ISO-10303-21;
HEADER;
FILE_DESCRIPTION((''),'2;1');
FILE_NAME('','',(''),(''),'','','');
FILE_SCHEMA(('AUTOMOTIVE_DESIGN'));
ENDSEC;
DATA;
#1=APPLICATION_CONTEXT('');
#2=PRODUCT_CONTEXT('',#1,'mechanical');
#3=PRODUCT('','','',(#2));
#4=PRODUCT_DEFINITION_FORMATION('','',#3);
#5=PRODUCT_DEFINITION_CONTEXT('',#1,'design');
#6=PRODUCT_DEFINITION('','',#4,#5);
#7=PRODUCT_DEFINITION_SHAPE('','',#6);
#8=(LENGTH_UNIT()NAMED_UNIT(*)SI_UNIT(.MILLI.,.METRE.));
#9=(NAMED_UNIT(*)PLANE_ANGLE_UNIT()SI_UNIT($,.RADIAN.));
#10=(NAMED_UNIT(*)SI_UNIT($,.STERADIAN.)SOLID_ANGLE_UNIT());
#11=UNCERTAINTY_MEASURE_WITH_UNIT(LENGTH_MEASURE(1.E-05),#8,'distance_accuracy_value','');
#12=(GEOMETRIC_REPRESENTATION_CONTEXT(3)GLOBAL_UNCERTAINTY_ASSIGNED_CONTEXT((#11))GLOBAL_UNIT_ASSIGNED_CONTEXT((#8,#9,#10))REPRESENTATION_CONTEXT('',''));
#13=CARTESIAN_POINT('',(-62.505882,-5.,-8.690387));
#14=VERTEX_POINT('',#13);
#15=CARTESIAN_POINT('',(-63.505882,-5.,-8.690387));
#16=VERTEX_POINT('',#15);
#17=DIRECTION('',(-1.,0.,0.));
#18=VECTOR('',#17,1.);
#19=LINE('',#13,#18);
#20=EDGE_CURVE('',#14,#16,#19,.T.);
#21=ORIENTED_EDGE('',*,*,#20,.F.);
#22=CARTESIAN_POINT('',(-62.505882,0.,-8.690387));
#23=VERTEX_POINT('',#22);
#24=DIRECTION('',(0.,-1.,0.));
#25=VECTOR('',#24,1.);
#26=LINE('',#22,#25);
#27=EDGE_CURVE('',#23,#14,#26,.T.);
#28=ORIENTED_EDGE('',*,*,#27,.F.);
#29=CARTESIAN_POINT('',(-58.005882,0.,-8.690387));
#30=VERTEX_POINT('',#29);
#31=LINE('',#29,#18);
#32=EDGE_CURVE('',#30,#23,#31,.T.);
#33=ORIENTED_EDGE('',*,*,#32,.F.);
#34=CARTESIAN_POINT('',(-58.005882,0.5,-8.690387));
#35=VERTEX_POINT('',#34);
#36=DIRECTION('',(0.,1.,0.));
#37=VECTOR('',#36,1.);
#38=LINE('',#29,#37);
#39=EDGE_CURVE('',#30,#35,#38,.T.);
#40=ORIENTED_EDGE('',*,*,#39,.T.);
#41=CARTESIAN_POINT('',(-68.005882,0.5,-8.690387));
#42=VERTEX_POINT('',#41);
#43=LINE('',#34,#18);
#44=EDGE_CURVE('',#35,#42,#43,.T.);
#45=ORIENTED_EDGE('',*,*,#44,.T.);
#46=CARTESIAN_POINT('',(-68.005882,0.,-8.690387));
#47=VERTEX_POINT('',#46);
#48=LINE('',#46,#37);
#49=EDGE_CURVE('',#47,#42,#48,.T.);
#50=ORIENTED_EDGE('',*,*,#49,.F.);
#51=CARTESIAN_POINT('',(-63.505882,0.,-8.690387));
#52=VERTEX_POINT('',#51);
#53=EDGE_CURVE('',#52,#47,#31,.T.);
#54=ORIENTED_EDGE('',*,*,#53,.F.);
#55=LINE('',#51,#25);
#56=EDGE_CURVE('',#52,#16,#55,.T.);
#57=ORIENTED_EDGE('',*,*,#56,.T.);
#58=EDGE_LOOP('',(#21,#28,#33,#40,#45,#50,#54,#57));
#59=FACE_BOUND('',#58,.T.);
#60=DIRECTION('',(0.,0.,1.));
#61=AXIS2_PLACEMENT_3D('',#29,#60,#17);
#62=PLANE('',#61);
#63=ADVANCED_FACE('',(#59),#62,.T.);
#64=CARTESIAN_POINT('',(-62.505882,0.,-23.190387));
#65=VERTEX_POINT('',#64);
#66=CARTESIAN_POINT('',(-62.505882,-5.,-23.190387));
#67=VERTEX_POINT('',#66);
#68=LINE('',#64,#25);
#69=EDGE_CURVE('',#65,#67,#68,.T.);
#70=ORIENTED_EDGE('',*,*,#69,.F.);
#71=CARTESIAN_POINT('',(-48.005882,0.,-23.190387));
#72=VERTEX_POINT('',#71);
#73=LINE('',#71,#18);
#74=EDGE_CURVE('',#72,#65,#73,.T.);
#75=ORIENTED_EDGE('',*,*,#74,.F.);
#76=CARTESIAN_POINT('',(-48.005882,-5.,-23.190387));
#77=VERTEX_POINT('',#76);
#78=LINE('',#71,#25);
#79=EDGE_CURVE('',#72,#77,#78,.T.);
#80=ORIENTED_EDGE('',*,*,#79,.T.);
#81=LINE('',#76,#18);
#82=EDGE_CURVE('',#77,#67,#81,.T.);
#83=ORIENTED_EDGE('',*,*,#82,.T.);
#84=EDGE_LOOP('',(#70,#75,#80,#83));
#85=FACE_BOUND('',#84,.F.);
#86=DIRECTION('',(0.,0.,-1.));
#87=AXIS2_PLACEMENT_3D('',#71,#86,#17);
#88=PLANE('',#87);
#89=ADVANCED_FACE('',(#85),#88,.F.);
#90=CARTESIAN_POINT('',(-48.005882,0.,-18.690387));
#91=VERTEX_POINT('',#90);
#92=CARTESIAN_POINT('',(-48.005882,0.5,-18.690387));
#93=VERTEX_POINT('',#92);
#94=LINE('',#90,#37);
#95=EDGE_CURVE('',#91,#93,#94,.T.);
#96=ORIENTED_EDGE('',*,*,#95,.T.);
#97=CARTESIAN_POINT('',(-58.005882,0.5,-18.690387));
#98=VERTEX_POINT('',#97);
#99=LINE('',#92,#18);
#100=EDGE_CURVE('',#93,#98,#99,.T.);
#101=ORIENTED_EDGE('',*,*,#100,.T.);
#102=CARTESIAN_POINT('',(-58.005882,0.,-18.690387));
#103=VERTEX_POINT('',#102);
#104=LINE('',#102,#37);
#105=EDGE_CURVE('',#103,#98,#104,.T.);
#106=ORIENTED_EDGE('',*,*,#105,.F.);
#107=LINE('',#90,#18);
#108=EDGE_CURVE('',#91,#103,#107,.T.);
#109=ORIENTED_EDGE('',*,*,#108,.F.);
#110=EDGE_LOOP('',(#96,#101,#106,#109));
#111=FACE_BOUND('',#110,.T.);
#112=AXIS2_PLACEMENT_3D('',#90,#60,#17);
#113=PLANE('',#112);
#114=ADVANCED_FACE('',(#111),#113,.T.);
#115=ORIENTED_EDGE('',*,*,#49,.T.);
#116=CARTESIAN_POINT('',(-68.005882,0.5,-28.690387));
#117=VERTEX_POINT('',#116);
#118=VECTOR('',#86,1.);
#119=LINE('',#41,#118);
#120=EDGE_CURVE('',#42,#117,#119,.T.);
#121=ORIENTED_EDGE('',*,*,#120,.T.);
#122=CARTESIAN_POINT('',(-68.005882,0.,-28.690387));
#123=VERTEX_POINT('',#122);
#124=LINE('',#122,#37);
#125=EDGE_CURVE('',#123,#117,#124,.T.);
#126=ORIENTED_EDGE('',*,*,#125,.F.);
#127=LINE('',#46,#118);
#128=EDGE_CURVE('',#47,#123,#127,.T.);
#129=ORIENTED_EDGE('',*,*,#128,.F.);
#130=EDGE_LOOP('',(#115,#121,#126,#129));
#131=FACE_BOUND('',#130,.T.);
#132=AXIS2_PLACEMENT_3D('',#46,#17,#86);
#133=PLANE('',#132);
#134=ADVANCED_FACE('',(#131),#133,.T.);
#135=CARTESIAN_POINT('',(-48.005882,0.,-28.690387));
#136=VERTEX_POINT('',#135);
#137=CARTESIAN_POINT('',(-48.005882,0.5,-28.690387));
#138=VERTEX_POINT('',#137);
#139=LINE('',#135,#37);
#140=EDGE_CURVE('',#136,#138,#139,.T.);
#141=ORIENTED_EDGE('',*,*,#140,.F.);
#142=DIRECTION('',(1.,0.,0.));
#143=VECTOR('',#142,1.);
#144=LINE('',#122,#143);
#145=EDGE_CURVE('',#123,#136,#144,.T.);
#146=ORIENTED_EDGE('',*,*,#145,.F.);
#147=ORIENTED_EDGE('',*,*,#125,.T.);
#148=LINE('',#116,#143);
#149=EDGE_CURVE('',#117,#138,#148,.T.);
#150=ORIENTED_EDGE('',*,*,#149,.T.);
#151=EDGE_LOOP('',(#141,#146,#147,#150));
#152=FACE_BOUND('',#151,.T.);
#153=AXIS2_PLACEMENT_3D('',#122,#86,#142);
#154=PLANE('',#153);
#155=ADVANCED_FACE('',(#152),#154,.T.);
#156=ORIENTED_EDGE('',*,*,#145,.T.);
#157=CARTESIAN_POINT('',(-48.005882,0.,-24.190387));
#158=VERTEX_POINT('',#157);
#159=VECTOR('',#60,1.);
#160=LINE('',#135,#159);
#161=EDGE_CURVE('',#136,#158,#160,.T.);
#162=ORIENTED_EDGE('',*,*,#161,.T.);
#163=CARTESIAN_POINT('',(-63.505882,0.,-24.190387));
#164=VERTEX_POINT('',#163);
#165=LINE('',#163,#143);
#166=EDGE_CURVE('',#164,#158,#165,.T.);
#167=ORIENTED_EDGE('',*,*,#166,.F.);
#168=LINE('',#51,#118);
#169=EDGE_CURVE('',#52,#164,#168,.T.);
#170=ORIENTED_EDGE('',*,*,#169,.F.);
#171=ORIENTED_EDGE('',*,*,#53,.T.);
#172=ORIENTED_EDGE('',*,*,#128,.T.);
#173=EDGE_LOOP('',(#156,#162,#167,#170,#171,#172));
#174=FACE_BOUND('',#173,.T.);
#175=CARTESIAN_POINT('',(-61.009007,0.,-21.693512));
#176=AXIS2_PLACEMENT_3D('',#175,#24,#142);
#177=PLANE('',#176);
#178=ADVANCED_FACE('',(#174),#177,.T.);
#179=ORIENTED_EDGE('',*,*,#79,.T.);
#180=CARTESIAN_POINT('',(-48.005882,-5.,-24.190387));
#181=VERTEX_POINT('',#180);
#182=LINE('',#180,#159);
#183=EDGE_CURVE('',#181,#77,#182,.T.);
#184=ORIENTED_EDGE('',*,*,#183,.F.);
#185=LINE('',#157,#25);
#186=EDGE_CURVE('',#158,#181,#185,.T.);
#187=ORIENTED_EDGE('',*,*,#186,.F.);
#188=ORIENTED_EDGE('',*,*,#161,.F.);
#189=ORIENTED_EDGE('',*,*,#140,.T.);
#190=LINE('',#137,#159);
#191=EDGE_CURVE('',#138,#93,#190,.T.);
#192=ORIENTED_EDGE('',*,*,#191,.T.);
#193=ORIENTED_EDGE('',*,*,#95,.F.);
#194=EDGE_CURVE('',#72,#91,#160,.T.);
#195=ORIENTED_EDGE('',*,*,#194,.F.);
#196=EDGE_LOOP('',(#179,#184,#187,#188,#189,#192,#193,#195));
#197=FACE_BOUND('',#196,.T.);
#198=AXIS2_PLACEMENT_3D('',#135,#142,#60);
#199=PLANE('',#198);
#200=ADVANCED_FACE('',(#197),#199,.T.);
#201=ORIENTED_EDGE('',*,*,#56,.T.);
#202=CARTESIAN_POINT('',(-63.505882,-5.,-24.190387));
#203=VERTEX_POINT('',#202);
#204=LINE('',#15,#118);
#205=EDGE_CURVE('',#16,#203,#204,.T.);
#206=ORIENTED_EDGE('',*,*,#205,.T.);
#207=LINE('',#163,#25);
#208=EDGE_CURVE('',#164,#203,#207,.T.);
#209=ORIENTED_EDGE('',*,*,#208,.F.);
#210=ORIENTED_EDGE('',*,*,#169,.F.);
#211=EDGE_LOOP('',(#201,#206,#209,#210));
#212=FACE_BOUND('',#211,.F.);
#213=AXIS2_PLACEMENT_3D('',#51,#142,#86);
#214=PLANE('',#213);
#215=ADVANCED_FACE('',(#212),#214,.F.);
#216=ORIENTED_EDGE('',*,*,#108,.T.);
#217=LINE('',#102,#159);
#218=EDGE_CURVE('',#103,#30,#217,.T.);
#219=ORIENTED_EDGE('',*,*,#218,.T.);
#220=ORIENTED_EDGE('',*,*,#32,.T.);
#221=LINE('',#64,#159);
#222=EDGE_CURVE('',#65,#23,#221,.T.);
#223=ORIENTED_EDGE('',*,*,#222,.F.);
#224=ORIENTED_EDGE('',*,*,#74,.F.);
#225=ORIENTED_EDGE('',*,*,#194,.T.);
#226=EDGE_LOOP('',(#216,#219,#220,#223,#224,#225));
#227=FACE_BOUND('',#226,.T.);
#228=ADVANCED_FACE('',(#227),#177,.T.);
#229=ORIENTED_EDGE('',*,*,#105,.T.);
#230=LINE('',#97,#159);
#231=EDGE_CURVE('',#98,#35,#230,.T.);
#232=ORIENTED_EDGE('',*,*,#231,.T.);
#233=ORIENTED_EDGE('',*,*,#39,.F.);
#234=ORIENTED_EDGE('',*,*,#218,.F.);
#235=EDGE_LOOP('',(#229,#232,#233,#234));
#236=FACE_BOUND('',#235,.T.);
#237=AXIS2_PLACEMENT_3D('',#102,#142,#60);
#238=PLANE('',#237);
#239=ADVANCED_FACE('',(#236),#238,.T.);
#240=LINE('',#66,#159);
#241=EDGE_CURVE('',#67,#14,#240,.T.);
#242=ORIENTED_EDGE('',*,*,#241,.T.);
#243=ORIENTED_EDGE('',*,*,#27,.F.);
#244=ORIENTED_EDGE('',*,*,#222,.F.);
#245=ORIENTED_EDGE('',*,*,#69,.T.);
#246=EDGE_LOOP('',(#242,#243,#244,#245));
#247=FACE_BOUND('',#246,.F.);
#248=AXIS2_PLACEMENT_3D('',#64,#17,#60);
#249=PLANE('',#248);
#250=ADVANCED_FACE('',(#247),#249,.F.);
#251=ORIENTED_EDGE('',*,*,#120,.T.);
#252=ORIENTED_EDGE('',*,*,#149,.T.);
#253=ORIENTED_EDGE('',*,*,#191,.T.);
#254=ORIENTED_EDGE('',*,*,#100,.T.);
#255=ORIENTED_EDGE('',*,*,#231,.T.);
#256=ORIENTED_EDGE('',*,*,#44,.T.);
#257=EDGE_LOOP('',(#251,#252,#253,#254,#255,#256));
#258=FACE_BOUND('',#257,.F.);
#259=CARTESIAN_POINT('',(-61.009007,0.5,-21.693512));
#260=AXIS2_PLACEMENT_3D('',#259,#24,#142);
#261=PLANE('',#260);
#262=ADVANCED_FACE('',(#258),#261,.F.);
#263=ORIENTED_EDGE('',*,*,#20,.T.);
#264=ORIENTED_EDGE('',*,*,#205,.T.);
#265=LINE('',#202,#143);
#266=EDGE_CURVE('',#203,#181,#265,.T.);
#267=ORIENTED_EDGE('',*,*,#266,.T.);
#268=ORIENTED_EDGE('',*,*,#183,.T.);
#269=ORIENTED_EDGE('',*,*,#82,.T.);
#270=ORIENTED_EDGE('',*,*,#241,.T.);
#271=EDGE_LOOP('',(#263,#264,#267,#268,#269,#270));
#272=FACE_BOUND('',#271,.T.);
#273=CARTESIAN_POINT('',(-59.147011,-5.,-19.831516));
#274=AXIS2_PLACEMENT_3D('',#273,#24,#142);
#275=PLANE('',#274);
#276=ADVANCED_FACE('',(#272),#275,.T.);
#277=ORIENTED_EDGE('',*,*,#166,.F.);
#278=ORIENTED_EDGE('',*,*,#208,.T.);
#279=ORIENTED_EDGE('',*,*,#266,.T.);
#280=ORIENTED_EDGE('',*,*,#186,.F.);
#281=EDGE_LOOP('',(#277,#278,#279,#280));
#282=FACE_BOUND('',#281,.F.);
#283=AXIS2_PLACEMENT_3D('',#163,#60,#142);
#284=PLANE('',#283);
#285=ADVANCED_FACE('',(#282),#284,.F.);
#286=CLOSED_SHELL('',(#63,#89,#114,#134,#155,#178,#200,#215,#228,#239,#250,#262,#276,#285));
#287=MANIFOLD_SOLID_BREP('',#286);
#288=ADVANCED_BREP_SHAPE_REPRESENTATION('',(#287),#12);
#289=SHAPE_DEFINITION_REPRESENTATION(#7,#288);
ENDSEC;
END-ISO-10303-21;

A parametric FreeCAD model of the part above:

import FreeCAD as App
import Part
import Sketcher

V = App.Vector
Q = App.Units.Quantity

doc = App.newDocument("Part")
body = doc.addObject("PartDesign::Body", "Body")

# Sketch on XZ plane
sketch1 = doc.addObject("Sketcher::SketchObject", "Sketch")
body.addObject(sketch1)
sketch1.AttachmentSupport = (doc.XZ_Plane, [""])
sketch1.MapMode = "FlatFace"
sketch1.addGeometry(Part.LineSegment(V(-63.5, -24.2, 0), V(-48, -24.2, 0)), False)
sketch1.addGeometry(Part.LineSegment(V(-48, -24.2, 0), V(-48, -23.2, 0)), False)
sketch1.addGeometry(Part.LineSegment(V(-48, -23.2, 0), V(-62.5, -23.2, 0)), False)
sketch1.addGeometry(Part.LineSegment(V(-62.5, -23.2, 0), V(-62.5, -8.7, 0)), False)
sketch1.addGeometry(Part.LineSegment(V(-62.5, -8.7, 0), V(-63.5, -8.7, 0)), False)
sketch1.addGeometry(Part.LineSegment(V(-63.5, -8.7, 0), V(-63.5, -24.2, 0)), False)
sketch1.addConstraint(Sketcher.Constraint("Coincident", 0, 2, 1, 1))
sketch1.addConstraint(Sketcher.Constraint("Coincident", 1, 2, 2, 1))
sketch1.addConstraint(Sketcher.Constraint("Coincident", 2, 2, 3, 1))
sketch1.addConstraint(Sketcher.Constraint("Coincident", 3, 2, 4, 1))
sketch1.addConstraint(Sketcher.Constraint("Coincident", 4, 2, 5, 1))
sketch1.addConstraint(Sketcher.Constraint("Coincident", 5, 2, 0, 1))
sketch1.addConstraint(Sketcher.Constraint("Horizontal", 0))
sketch1.addConstraint(Sketcher.Constraint("Vertical", 1))
sketch1.addConstraint(Sketcher.Constraint("Horizontal", 2))
sketch1.addConstraint(Sketcher.Constraint("Vertical", 3))
sketch1.addConstraint(Sketcher.Constraint("Horizontal", 4))
sketch1.addConstraint(Sketcher.Constraint("Vertical", 5))
sketch1.addConstraint(Sketcher.Constraint("Equal", 4, 1))
sketch1.addConstraint(Sketcher.Constraint("Equal", 2, 3))
sketch1.addConstraint(Sketcher.Constraint("DistanceX", 4, 2, 4, 1, Q("1 mm")))
sketch1.addConstraint(Sketcher.Constraint("DistanceX", 0, 1, 0, 2, Q("15.5 mm")))
sketch1.addConstraint(Sketcher.Constraint("DistanceX", 0, 2, -1, 1, Q("48.005882 mm")))
sketch1.addConstraint(Sketcher.Constraint("DistanceY", 0, 2, -1, 1, Q("24.190387 mm")))
pad1 = doc.addObject("PartDesign::Pad", "Pad")
body.addObject(pad1)
pad1.Profile = sketch1
pad1.Length = 5

# Sketch on XZ plane
sketch2 = doc.addObject("Sketcher::SketchObject", "Sketch001")
body.addObject(sketch2)
sketch2.AttachmentSupport = (doc.XZ_Plane, [""])
sketch2.MapMode = "FlatFace"
sketch2.addGeometry(Part.LineSegment(V(-68, -9, 0), V(-68, -29, 0)), False)
sketch2.addGeometry(Part.LineSegment(V(-68, -29, 0), V(-48, -29, 0)), False)
sketch2.addGeometry(Part.LineSegment(V(-48, -29, 0), V(-48, -19, 0)), False)
sketch2.addGeometry(Part.LineSegment(V(-48, -19, 0), V(-58, -19, 0)), False)
sketch2.addGeometry(Part.LineSegment(V(-58, -19, 0), V(-58, -9, 0)), False)
sketch2.addGeometry(Part.LineSegment(V(-58, -9, 0), V(-68, -9, 0)), False)
sketch2.addConstraint(Sketcher.Constraint("Coincident", 0, 2, 1, 1))
sketch2.addConstraint(Sketcher.Constraint("Coincident", 1, 2, 2, 1))
sketch2.addConstraint(Sketcher.Constraint("Coincident", 2, 2, 3, 1))
sketch2.addConstraint(Sketcher.Constraint("Coincident", 3, 2, 4, 1))
sketch2.addConstraint(Sketcher.Constraint("Coincident", 4, 2, 5, 1))
sketch2.addConstraint(Sketcher.Constraint("Coincident", 5, 2, 0, 1))
sketch2.addConstraint(Sketcher.Constraint("Vertical", 0))
sketch2.addConstraint(Sketcher.Constraint("Horizontal", 1))
sketch2.addConstraint(Sketcher.Constraint("Vertical", 2))
sketch2.addConstraint(Sketcher.Constraint("Horizontal", 3))
sketch2.addConstraint(Sketcher.Constraint("Vertical", 4))
sketch2.addConstraint(Sketcher.Constraint("Horizontal", 5))
sketch2.addConstraint(Sketcher.Constraint("Equal", 3, 5))
sketch2.addConstraint(Sketcher.Constraint("Equal", 1, 0))
sketch2.addConstraint(Sketcher.Constraint("Equal", 5, 2))
sketch2.addConstraint(Sketcher.Constraint("DistanceX", 1, 1, 1, 2, Q("20 mm")))
sketch2.addConstraint(Sketcher.Constraint("DistanceX", 0, 2, -1, 1, Q("68.005882 mm")))
sketch2.addConstraint(Sketcher.Constraint("DistanceY", 0, 2, -1, 1, Q("28.690387 mm")))
pad2 = doc.addObject("PartDesign::Pad", "Pad001")
body.addObject(pad2)
pad2.Profile = sketch2
pad2.Length = 0.5
pad2.Reversed = True

doc.recompute()
